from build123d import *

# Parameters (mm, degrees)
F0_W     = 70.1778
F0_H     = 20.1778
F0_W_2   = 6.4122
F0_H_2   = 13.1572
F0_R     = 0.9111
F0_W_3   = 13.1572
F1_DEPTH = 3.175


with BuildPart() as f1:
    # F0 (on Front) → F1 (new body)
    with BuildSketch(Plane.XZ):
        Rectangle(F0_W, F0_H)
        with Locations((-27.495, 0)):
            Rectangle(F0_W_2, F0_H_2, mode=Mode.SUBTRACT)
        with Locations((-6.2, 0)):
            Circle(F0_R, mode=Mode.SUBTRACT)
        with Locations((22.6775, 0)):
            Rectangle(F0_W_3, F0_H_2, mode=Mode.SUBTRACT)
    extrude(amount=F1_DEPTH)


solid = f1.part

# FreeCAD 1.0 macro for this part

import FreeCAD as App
import Part
import Sketcher

V = App.Vector
Q = App.Units.Quantity

doc = App.newDocument("Part")
body = doc.addObject("PartDesign::Body", "Body")

sketch1 = body.newObject("Sketcher::SketchObject", "Sketch")
sketch1.AttachmentSupport = (doc.getObject("XZ_Plane"), [""])
sketch1.MapMode = "FlatFace"
sketch1.addGeometry([
    Part.LineSegment(V(-35.0889, 10.0889, 0), V(-35.0889, -10.0889, 0)),
    Part.LineSegment(V(-35.0889, -10.0889, 0), V(35.0889, -10.0889, 0)),
    Part.LineSegment(V(35.0889, -10.0889, 0), V(35.0889, 10.0889, 0)),
    Part.LineSegment(V(35.0889, 10.0889, 0), V(-35.0889, 10.0889, 0)),
    Part.LineSegment(V(-24.2889, -6.5786, 0), V(-30.7011, -6.5786, 0)),
    Part.LineSegment(V(-30.7011, -6.5786, 0), V(-30.7011, 6.5786, 0)),
    Part.LineSegment(V(-30.7011, 6.5786, 0), V(-24.2889, 6.5786, 0)),
    Part.LineSegment(V(-24.2889, 6.5786, 0), V(-24.2889, -6.5786, 0)),
    Part.Circle(V(-6.2, 0, 0), V(0, 0, 1), 0.9111),
    Part.LineSegment(V(29.2561, -6.5786, 0), V(16.0989, -6.5786, 0)),
    Part.LineSegment(V(16.0989, -6.5786, 0), V(16.0989, 6.5786, 0)),
    Part.LineSegment(V(16.0989, 6.5786, 0), V(29.2561, 6.5786, 0)),
    Part.LineSegment(V(29.2561, 6.5786, 0), V(29.2561, -6.5786, 0)),
], False)
sketch1.addConstraint([
    Sketcher.Constraint("Coincident", 0, 2, 1, 1),
    Sketcher.Constraint("Coincident", 1, 2, 2, 1),
    Sketcher.Constraint("Coincident", 2, 2, 3, 1),
    Sketcher.Constraint("Coincident", 3, 2, 0, 1),
    Sketcher.Constraint("Coincident", 4, 2, 5, 1),
    Sketcher.Constraint("Coincident", 5, 2, 6, 1),
    Sketcher.Constraint("Coincident", 6, 2, 7, 1),
    Sketcher.Constraint("Coincident", 7, 2, 4, 1),
    Sketcher.Constraint("Coincident", 9, 2, 10, 1),
    Sketcher.Constraint("Coincident", 10, 2, 11, 1),
    Sketcher.Constraint("Coincident", 11, 2, 12, 1),
    Sketcher.Constraint("Coincident", 12, 2, 9, 1),
    Sketcher.Constraint("Vertical", 0),
    Sketcher.Constraint("Horizontal", 1),
    Sketcher.Constraint("Vertical", 2),
    Sketcher.Constraint("Horizontal", 3),
    Sketcher.Constraint("Horizontal", 4),
    Sketcher.Constraint("Vertical", 5),
    Sketcher.Constraint("Horizontal", 6),
    Sketcher.Constraint("Vertical", 7),
    Sketcher.Constraint("Horizontal", 9),
    Sketcher.Constraint("Vertical", 10),
    Sketcher.Constraint("Horizontal", 11),
    Sketcher.Constraint("Vertical", 12),
    Sketcher.Constraint("Symmetric", 0, 2, 2, 2, -1, 1),
    Sketcher.Constraint("PointOnObject", 8, 3, -1),
    Sketcher.Constraint("Horizontal", 7, 2, 9, 2),
    Sketcher.Constraint("Horizontal", 6, 2, 10, 2),
    Sketcher.Constraint("Equal", 11, 5),
    Sketcher.Constraint("Diameter", 8, Q("1.8222 mm")),
    Sketcher.Constraint("DistanceX", 9, 2, 9, 1, Q("0.518 in")),
    Sketcher.Constraint("DistanceY", 4, 2, -1, 1, Q("0.259 in")),
    Sketcher.Constraint("DistanceX", 1, 1, 1, 2, Q("70.1778 mm")),
    Sketcher.Constraint("DistanceX", 4, 2, 4, 1, Q("6.4122 mm")),
    Sketcher.Constraint("DistanceY", 0, 2, 0, 1, Q("20.1778 mm")),
    Sketcher.Constraint("DistanceX", 8, 3, -1, 1, Q("6.2 mm")),
    Sketcher.Constraint("DistanceX", 4, 2, -1, 1, Q("30.7011 mm")),
    Sketcher.Constraint("DistanceX", -1, 1, 9, 2, Q("16.0989 mm")),
])
pad1 = body.newObject("PartDesign::Pad", "Pad")
pad1.Profile = sketch1
pad1.Length = Q("0.125 in")

doc.recompute()
